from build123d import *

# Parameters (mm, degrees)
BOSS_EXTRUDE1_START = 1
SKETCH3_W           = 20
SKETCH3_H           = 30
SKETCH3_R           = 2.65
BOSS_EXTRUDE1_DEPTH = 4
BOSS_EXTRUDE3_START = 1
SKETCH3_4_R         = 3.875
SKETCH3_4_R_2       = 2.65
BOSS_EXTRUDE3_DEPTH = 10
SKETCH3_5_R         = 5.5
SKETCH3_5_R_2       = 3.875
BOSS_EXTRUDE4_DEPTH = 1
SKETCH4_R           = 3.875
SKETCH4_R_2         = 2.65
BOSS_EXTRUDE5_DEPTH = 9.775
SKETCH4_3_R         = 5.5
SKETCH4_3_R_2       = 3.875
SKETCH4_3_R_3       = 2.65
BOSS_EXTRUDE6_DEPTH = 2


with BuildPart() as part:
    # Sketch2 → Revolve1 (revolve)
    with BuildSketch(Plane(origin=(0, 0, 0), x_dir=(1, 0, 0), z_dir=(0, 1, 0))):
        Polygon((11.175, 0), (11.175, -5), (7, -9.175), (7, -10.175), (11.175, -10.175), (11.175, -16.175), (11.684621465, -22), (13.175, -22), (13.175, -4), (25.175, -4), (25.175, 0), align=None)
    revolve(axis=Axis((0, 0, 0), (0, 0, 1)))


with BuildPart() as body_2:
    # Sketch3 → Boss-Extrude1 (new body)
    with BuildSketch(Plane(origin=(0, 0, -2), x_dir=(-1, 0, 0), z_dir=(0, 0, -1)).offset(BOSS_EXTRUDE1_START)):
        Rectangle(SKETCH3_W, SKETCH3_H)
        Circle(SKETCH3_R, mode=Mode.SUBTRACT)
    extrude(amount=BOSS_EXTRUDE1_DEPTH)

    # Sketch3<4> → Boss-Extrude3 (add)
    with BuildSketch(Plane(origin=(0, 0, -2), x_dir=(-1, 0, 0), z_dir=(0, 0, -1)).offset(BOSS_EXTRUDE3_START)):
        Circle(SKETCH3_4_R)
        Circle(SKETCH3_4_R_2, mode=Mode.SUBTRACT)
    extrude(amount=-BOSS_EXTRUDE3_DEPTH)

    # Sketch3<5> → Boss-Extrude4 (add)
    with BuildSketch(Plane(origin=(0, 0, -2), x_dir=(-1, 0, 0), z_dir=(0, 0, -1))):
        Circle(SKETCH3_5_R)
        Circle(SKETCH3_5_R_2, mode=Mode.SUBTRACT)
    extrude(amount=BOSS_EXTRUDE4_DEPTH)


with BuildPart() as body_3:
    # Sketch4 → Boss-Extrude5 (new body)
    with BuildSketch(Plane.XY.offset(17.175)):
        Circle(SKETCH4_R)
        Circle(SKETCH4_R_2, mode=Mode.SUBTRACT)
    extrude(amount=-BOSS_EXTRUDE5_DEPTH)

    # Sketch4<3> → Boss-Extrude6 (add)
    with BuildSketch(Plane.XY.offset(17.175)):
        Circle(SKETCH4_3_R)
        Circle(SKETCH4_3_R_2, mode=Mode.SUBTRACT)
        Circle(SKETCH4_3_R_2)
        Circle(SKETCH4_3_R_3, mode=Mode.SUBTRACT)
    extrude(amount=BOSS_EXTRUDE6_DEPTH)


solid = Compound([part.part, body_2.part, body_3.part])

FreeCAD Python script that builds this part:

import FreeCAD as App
import Part
import Sketcher
from FreeCAD import Vector
Q = App.Units.Quantity

doc = App.newDocument("Part")
body = doc.addObject("PartDesign::Body", "Body")

# Sketch on XZ plane
sketch1 = doc.addObject("Sketcher::SketchObject", "Sketch")
body.addObject(sketch1)
sketch1.AttachmentSupport = (doc.XZ_Plane, [""])
sketch1.MapMode = "FlatFace"
sketch1.addGeometry([
    Part.LineSegment(Vector(11.2, 0, 0), Vector(11.2, 5, 0)),  # 0
    Part.LineSegment(Vector(11.2, 5, 0), Vector(7, 9.2, 0)),  # 1
    Part.LineSegment(Vector(7, 9.2, 0), Vector(7, 10.2, 0)),  # 2
    Part.LineSegment(Vector(7, 10.2, 0), Vector(11.2, 10.2, 0)),  # 3
    Part.LineSegment(Vector(11.2, 10.2, 0), Vector(11.2, 16.2, 0)),  # 4
    Part.LineSegment(Vector(11.2, 16.2, 0), Vector(11.7, 22, 0)),  # 5
    Part.LineSegment(Vector(11.7, 22, 0), Vector(13.2, 22, 0)),  # 6
    Part.LineSegment(Vector(13.2, 22, 0), Vector(13.2, 4, 0)),  # 7
    Part.LineSegment(Vector(13.2, 4, 0), Vector(25.2, 4, 0)),  # 8
    Part.LineSegment(Vector(25.2, 4, 0), Vector(25.2, 0, 0)),  # 9
    Part.LineSegment(Vector(25.2, 0, 0), Vector(11.2, 0, 0)),  # 10
], False)
sketch1.addConstraint([
    Sketcher.Constraint("Coincident", 0, 2, 1, 1),
    Sketcher.Constraint("Coincident", 1, 2, 2, 1),
    Sketcher.Constraint("Coincident", 2, 2, 3, 1),
    Sketcher.Constraint("Coincident", 3, 2, 4, 1),
    Sketcher.Constraint("Coincident", 4, 2, 5, 1),
    Sketcher.Constraint("Coincident", 5, 2, 6, 1),
    Sketcher.Constraint("Coincident", 6, 2, 7, 1),
    Sketcher.Constraint("Coincident", 7, 2, 8, 1),
    Sketcher.Constraint("Coincident", 8, 2, 9, 1),
    Sketcher.Constraint("Coincident", 9, 2, 10, 1),
    Sketcher.Constraint("Coincident", 10, 2, 0, 1),
    Sketcher.Constraint("Vertical", 0),
    Sketcher.Constraint("Vertical", 2),
    Sketcher.Constraint("Horizontal", 3),
    Sketcher.Constraint("Vertical", 4),
    Sketcher.Constraint("Horizontal", 6),
    Sketcher.Constraint("Vertical", 7),
    Sketcher.Constraint("Horizontal", 8),
    Sketcher.Constraint("Vertical", 9),
    Sketcher.Constraint("Horizontal", 10),
    Sketcher.Constraint("PointOnObject", 9, 2, -1),
    Sketcher.Constraint("Vertical", 0, 2, 3, 2),
    Sketcher.Constraint("DistanceX", 8, 1, 8, 2, 12.0),
    Sketcher.Constraint("DistanceX", 10, 2, 10, 1, 14.0),
    Sketcher.Constraint("DistanceY", 0, 1, 0, 2, 5.0),
    Sketcher.Constraint("DistanceY", 2, 1, 2, 2, 1.0),
    Sketcher.Constraint("DistanceY", 4, 1, 4, 2, 6.0),
    Sketcher.Constraint("DistanceY", 7, 2, 7, 1, 18.0),
    Sketcher.Constraint("DistanceY", 9, 2, 9, 1, 4.0),
    Sketcher.Constraint("Angle", 1, Q("135 deg")),
    Sketcher.Constraint("Angle", 5, Q("85 deg")),
    Sketcher.Constraint("DistanceX", -1, 1, 1, 2, 7.0),
    Sketcher.Constraint("DistanceX", 3, 1, 3, 2, 4.175),
])
revolution = doc.addObject("PartDesign::Revolution", "Revolution")
body.addObject(revolution)
revolution.Profile = sketch1
revolution.ReferenceAxis = (sketch1, ["V_Axis"])
revolution.Angle = 360
body2 = doc.addObject("PartDesign::Body", "Body001")

# Sketch on XY plane
sketch2 = doc.addObject("Sketcher::SketchObject", "Sketch001")
body2.addObject(sketch2)
sketch2.AttachmentSupport = (doc.getObject("XY_Plane001"), [""])
sketch2.MapMode = "FlatFace"
sketch2.AttachmentOffset = App.Placement(Vector(0, 0, -3), App.Rotation())
sketch2.addGeometry([
    Part.LineSegment(Vector(10, 15, 0), Vector(10, -15, 0)),  # 0
    Part.LineSegment(Vector(10, -15, 0), Vector(-10, -15, 0)),  # 1
    Part.LineSegment(Vector(-10, -15, 0), Vector(-10, 15, 0)),  # 2
    Part.LineSegment(Vector(-10, 15, 0), Vector(10, 15, 0)),  # 3
    Part.Circle(Vector(0, 0, 0), Vector(0, 0, 1), 2.6),  # 4
], False)
sketch2.addConstraint([
    Sketcher.Constraint("Coincident", 0, 2, 1, 1),
    Sketcher.Constraint("Coincident", 1, 2, 2, 1),
    Sketcher.Constraint("Coincident", 2, 2, 3, 1),
    Sketcher.Constraint("Coincident", 3, 2, 0, 1),
    Sketcher.Constraint("Vertical", 0),
    Sketcher.Constraint("Horizontal", 1),
    Sketcher.Constraint("Vertical", 2),
    Sketcher.Constraint("Horizontal", 3),
    Sketcher.Constraint("Coincident", 4, 3, -1, 1),
    Sketcher.Constraint("Symmetric", 0, 2, 2, 2, -1, 1),
    Sketcher.Constraint("Diameter", 4, 5.3),
    Sketcher.Constraint("DistanceX", 1, 2, 1, 1, 20.0),
    Sketcher.Constraint("DistanceY", 0, 2, 0, 1, 30.0),
])
pad1 = doc.addObject("PartDesign::Pad", "Pad")
body2.addObject(pad1)
pad1.Profile = sketch2
pad1.Length = 4
pad1.Reversed = True

# Sketch on XY plane
sketch3 = doc.addObject("Sketcher::SketchObject", "Sketch002")
body2.addObject(sketch3)
sketch3.AttachmentSupport = (doc.getObject("XY_Plane001"), [""])
sketch3.MapMode = "FlatFace"
sketch3.AttachmentOffset = App.Placement(Vector(0, 0, -3), App.Rotation())
sketch3.addGeometry([
    Part.Circle(Vector(0, 0, 0), Vector(0, 0, 1), 3.9),
    Part.Circle(Vector(0, 0, 0), Vector(0, 0, 1), 2.6),
], False)
sketch3.addConstraint([
    Sketcher.Constraint("Coincident", 0, 3, -1, 1),
    Sketcher.Constraint("Coincident", 1, 3, -1, 1),
    Sketcher.Constraint("Diameter", 1, 5.3),
    Sketcher.Constraint("Diameter", 0, 7.75),
])
pad2 = doc.addObject("PartDesign::Pad", "Pad001")
body2.addObject(pad2)
pad2.Profile = sketch3
pad2.Length = 10

# Sketch on XY plane
sketch4 = doc.addObject("Sketcher::SketchObject", "Sketch003")
body2.addObject(sketch4)
sketch4.AttachmentSupport = (doc.getObject("XY_Plane001"), [""])
sketch4.MapMode = "FlatFace"
sketch4.AttachmentOffset = App.Placement(Vector(0, 0, -2), App.Rotation())
sketch4.addGeometry([
    Part.Circle(Vector(0, 0, 0), Vector(0, 0, 1), 5.5),
    Part.Circle(Vector(0, 0, 0), Vector(0, 0, 1), 3.9),
], False)
sketch4.addConstraint([
    Sketcher.Constraint("Coincident", 0, 3, -1, 1),
    Sketcher.Constraint("Coincident", 1, 3, -1, 1),
    Sketcher.Constraint("Diameter", 0, 11.0),
    Sketcher.Constraint("Diameter", 1, 7.75),
])
pad3 = doc.addObject("PartDesign::Pad", "Pad002")
body2.addObject(pad3)
pad3.Profile = sketch4
pad3.Length = 1
pad3.Reversed = True
body3 = doc.addObject("PartDesign::Body", "Body002")

# Sketch on XY plane
sketch5 = doc.addObject("Sketcher::SketchObject", "Sketch004")
body3.addObject(sketch5)
sketch5.AttachmentSupport = (doc.getObject("XY_Plane002"), [""])
sketch5.MapMode = "FlatFace"
sketch5.AttachmentOffset = App.Placement(Vector(0, 0, 17.175), App.Rotation())
sketch5.addGeometry([
    Part.Circle(Vector(0, 0, 0), Vector(0, 0, 1), 3.9),
    Part.Circle(Vector(0, 0, 0), Vector(0, 0, 1), 2.6),
], False)
sketch5.addConstraint([
    Sketcher.Constraint("Coincident", 0, 3, -1, 1),
    Sketcher.Constraint("Coincident", 1, 3, -1, 1),
    Sketcher.Constraint("Diameter", 1, 5.3),
    Sketcher.Constraint("Diameter", 0, 7.75),
])
pad4 = doc.addObject("PartDesign::Pad", "Pad003")
body3.addObject(pad4)
pad4.Profile = sketch5
pad4.Length = 9.775
pad4.Reversed = True

# Sketch on XY plane
sketch6 = doc.addObject("Sketcher::SketchObject", "Sketch005")
body3.addObject(sketch6)
sketch6.AttachmentSupport = (doc.getObject("XY_Plane002"), [""])
sketch6.MapMode = "FlatFace"
sketch6.AttachmentOffset = App.Placement(Vector(0, 0, 17.175), App.Rotation())
sketch6.addGeometry([
    Part.Circle(Vector(0, 0, 0), Vector(0, 0, 1), 5.5),
    Part.Circle(Vector(0, 0, 0), Vector(0, 0, 1), 2.6),
], False)
sketch6.addConstraint([
    Sketcher.Constraint("Coincident", 0, 3, -1, 1),
    Sketcher.Constraint("Coincident", 1, 3, -1, 1),
    Sketcher.Constraint("Diameter", 0, 11.0),
    Sketcher.Constraint("Diameter", 1, 5.3),
])
pad5 = doc.addObject("PartDesign::Pad", "Pad004")
body3.addObject(pad5)
pad5.Profile = sketch6
pad5.Length = 2

doc.recompute()
